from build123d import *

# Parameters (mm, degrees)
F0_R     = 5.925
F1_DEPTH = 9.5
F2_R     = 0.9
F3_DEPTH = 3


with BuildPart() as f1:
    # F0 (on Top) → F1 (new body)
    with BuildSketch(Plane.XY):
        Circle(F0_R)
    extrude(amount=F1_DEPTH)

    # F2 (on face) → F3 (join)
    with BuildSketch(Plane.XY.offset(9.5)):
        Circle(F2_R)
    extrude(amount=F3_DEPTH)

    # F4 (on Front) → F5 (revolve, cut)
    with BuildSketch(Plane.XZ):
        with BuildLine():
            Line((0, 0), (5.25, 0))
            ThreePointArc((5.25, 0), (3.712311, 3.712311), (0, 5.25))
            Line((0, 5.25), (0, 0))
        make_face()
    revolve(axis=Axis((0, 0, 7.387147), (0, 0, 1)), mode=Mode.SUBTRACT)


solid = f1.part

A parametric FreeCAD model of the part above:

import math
import FreeCAD as App
import Part
import Sketcher

V = App.Vector

doc = App.newDocument("Part")
params = doc.addObject("Spreadsheet::Sheet", "Params")
for row, (alias, value) in enumerate([
    ("sketch1_diameter", "11.85 mm"),
    ("pad1_length", "9.5 mm"),
    ("sketch2_diameter", "1.8 mm"),
    ("pad2_length", "3 mm"),
    ("sketch3_radius", "5.249999 mm"),
    ("groove_angle", "360 deg"),
], start=1):
    params.set(f"A{row}", alias)
    params.set(f"B{row}", "=" + value)
    params.setAlias(f"B{row}", alias)

body = doc.addObject("PartDesign::Body", "Body")

sketch1 = doc.addObject("Sketcher::SketchObject", "Sketch")
body.addObject(sketch1)
sketch1.AttachmentSupport = (doc.XY_Plane, [""])
sketch1.MapMode = "FlatFace"
sketch1.addGeometry(Part.Circle(V(0, 0, 0), V(0, 0, 1), 6), False)
sketch1.addConstraint([
    Sketcher.Constraint("Coincident", 0, 3, -1, 1),
    Sketcher.Constraint("Diameter", 0, 11.85),
])
sketch1.setExpression("Constraints[1]", "Params.sketch1_diameter")
pad1 = doc.addObject("PartDesign::Pad", "Pad")
body.addObject(pad1)
pad1.Profile = sketch1
pad1.setExpression("Length", "Params.pad1_length")

sketch2 = doc.addObject("Sketcher::SketchObject", "Sketch001")
body.addObject(sketch2)
sketch2.AttachmentSupport = (doc.XY_Plane, [""])
sketch2.MapMode = "FlatFace"
sketch2.AttachmentOffset = App.Placement(V(0, 0, 9.5), App.Rotation())
sketch2.addGeometry(Part.Circle(V(0, 0, 0), V(0, 0, 1), 0.9), False)
sketch2.addConstraint([
    Sketcher.Constraint("Coincident", 0, 3, -1, 1),
    Sketcher.Constraint("Diameter", 0, 1.8),
])
sketch2.setExpression("Constraints[1]", "Params.sketch2_diameter")
pad2 = doc.addObject("PartDesign::Pad", "Pad001")
body.addObject(pad2)
pad2.Profile = sketch2
pad2.setExpression("Length", "Params.pad2_length")

sketch3 = doc.addObject("Sketcher::SketchObject", "Sketch002")
body.addObject(sketch3)
sketch3.AttachmentSupport = (doc.XZ_Plane, [""])
sketch3.MapMode = "FlatFace"
sketch3.addGeometry([
    Part.LineSegment(V(0, 0, 0), V(5, 0, 0)),
    Part.ArcOfCircle(Part.Circle(V(0, 0, 0), V(0, 0, 1), 5), math.radians(0), math.radians(90)),
    Part.LineSegment(V(0, 5, 0), V(0, 0, 0)),
], False)
sketch3.addConstraint([
    Sketcher.Constraint("Coincident", 0, 2, 1, 1),
    Sketcher.Constraint("Coincident", 1, 2, 2, 1),
    Sketcher.Constraint("Coincident", 2, 2, 0, 1),
    Sketcher.Constraint("Horizontal", 0),
    Sketcher.Constraint("Vertical", 2),
    Sketcher.Constraint("Coincident", 1, 3, -1, 1),
    Sketcher.Constraint("Coincident", 2, 2, -1, 1),
    Sketcher.Constraint("Radius", 1, 5.249999),
])
sketch3.setExpression("Constraints[7]", "Params.sketch3_radius")
groove = doc.addObject("PartDesign::Groove", "Groove")
body.addObject(groove)
groove.Profile = sketch3
groove.ReferenceAxis = (sketch3, ["V_Axis"])
groove.setExpression("Angle", "Params.groove_angle")

doc.recompute()
